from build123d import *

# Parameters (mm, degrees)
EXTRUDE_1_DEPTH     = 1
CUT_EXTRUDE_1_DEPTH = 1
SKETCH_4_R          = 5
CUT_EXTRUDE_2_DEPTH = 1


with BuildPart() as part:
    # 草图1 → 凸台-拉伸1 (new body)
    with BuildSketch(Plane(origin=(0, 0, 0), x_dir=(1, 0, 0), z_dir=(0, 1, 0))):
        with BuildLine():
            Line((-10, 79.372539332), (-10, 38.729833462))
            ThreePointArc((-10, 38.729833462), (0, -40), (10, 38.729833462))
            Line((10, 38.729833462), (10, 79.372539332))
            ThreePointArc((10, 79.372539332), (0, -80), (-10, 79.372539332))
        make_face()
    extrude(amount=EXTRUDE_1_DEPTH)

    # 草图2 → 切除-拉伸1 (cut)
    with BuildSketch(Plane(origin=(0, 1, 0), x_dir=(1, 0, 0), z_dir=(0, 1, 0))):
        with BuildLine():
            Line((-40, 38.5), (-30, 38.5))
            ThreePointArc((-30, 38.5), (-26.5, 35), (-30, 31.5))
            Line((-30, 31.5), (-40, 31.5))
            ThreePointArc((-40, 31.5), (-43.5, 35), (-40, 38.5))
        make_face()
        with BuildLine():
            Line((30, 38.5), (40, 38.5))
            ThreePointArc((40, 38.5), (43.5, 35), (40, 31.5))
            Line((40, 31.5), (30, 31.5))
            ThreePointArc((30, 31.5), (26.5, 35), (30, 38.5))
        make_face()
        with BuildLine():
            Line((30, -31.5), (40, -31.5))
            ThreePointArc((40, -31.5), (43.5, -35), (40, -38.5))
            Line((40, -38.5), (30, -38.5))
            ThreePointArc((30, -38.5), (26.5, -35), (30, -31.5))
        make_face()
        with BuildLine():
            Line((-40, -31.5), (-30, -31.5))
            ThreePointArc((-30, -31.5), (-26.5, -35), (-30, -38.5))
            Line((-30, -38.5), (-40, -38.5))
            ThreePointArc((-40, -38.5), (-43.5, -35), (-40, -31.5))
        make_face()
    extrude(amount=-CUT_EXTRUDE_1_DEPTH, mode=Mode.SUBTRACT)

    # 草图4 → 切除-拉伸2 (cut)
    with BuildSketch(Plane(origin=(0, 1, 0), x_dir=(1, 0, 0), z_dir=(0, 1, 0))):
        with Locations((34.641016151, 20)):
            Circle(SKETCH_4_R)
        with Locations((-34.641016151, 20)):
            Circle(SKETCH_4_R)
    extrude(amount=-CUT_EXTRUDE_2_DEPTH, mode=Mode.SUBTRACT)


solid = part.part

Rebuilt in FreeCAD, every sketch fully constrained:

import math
import FreeCAD as App
import Part
import Sketcher
from FreeCAD import Vector
Q = App.Units.Quantity

doc = App.newDocument("Part")
params = doc.addObject("Spreadsheet::Sheet", "Params")
for row, (alias, value) in enumerate([
    ("sketch1_radius", "80 mm"),
    ("sketch1_radius2", "40 mm"),
    ("pad1_length", "1 mm"),
    ("sketch2_radius", "3.5 mm"),
    ("sketch2_width", "10 mm"),
    ("pocket1_length", "1 mm"),
    ("sketch3_diameter", "10 mm"),
    ("pocket2_length", "1 mm"),
], start=1):
    params.set(f"A{row}", alias)
    params.set(f"B{row}", "=" + value)
    params.setAlias(f"B{row}", alias)

body = doc.addObject("PartDesign::Body", "Body")

# Sketch on XZ plane
sketch1 = body.newObject("Sketcher::SketchObject", "Sketch")
sketch1.AttachmentSupport = (doc.getObject("XZ_Plane"), [""])
sketch1.MapMode = "FlatFace"
sketch1.addGeometry(Part.LineSegment(Vector(-10, -39, 0), Vector(-10, -79, 0)), False)
sketch1.addGeometry(Part.ArcOfCircle(Part.Circle(Vector(0, 0, 0), Vector(0, 0, 1), 80), math.radians(-83), math.radians(263)), False)
sketch1.addGeometry(Part.LineSegment(Vector(10, -79, 0), Vector(10, -39, 0)), False)
sketch1.addGeometry(Part.ArcOfCircle(Part.Circle(Vector(0, 0, 0), Vector(0, 0, 1), 40), math.radians(-76), math.radians(256)), False)
sketch1.addConstraint(Sketcher.Constraint("Coincident", 0, 2, 1, 2))
sketch1.addConstraint(Sketcher.Constraint("Coincident", 1, 1, 2, 1))
sketch1.addConstraint(Sketcher.Constraint("Coincident", 2, 2, 3, 1))
sketch1.addConstraint(Sketcher.Constraint("Coincident", 3, 2, 0, 1))
sketch1.addConstraint(Sketcher.Constraint("Vertical", 0))
sketch1.addConstraint(Sketcher.Constraint("Vertical", 2))
sketch1.addConstraint(Sketcher.Constraint("Coincident", 1, 3, -1, 1))
sketch1.addConstraint(Sketcher.Constraint("Coincident", 3, 3, -1, 1))
sketch1.addConstraint(Sketcher.Constraint("Horizontal", 0, 2, 1, 1))
sketch1.addConstraint(Sketcher.Constraint("Radius", 1, Q("80 mm")))
sketch1.addConstraint(Sketcher.Constraint("Radius", 3, Q("40 mm")))
sketch1.addConstraint(Sketcher.Constraint("DistanceX", 0, 2, -1, 1, Q("10 mm")))
sketch1.setExpression("Constraints[9]", "Params.sketch1_radius")
sketch1.setExpression("Constraints[10]", "Params.sketch1_radius2")
pad1 = body.newObject("PartDesign::Pad", "Pad")
pad1.Profile = sketch1
pad1.setExpression("Length", "Params.pad1_length")
pad1.Reversed = True

# Sketch on XZ plane
sketch2 = body.newObject("Sketcher::SketchObject", "Sketch001")
sketch2.AttachmentSupport = (doc.getObject("XZ_Plane"), [""])
sketch2.MapMode = "FlatFace"
sketch2.AttachmentOffset = App.Placement(Vector(0, 0, -1), App.Rotation())
sketch2.addGeometry(Part.LineSegment(Vector(-30, -38.5, 0), Vector(-40, -38.5, 0)), False)
sketch2.addGeometry(Part.ArcOfCircle(Part.Circle(Vector(-40, -35, 0), Vector(0, 0, 1), 3.5), math.radians(90), math.radians(270)), False)
sketch2.addGeometry(Part.LineSegment(Vector(-40, -31.5, 0), Vector(-30, -31.5, 0)), False)
sketch2.addGeometry(Part.ArcOfCircle(Part.Circle(Vector(-30, -35, 0), Vector(0, 0, 1), 3.5), math.radians(-90), math.radians(90)), False)
sketch2.addGeometry(Part.LineSegment(Vector(40, -38.5, 0), Vector(30, -38.5, 0)), False)
sketch2.addGeometry(Part.ArcOfCircle(Part.Circle(Vector(30, -35, 0), Vector(0, 0, 1), 3.5), math.radians(90), math.radians(270)), False)
sketch2.addGeometry(Part.LineSegment(Vector(30, -31.5, 0), Vector(40, -31.5, 0)), False)
sketch2.addGeometry(Part.ArcOfCircle(Part.Circle(Vector(40, -35, 0), Vector(0, 0, 1), 3.5), math.radians(-90), math.radians(90)), False)
sketch2.addGeometry(Part.LineSegment(Vector(40, 31.5, 0), Vector(30, 31.5, 0)), False)
sketch2.addGeometry(Part.ArcOfCircle(Part.Circle(Vector(30, 35, 0), Vector(0, 0, 1), 3.5), math.radians(90), math.radians(270)), False)
sketch2.addGeometry(Part.LineSegment(Vector(30, 38.5, 0), Vector(40, 38.5, 0)), False)
sketch2.addGeometry(Part.ArcOfCircle(Part.Circle(Vector(40, 35, 0), Vector(0, 0, 1), 3.5), math.radians(-90), math.radians(90)), False)
sketch2.addGeometry(Part.LineSegment(Vector(-30, 31.5, 0), Vector(-40, 31.5, 0)), False)
sketch2.addGeometry(Part.ArcOfCircle(Part.Circle(Vector(-40, 35, 0), Vector(0, 0, 1), 3.5), math.radians(90), math.radians(270)), False)
sketch2.addGeometry(Part.LineSegment(Vector(-40, 38.5, 0), Vector(-30, 38.5, 0)), False)
sketch2.addGeometry(Part.ArcOfCircle(Part.Circle(Vector(-30, 35, 0), Vector(0, 0, 1), 3.5), math.radians(-90), math.radians(90)), False)
sketch2.addConstraint(Sketcher.Constraint("Tangent", 0, 2, 1, 2))
sketch2.addConstraint(Sketcher.Constraint("Tangent", 1, 1, 2, 1))
sketch2.addConstraint(Sketcher.Constraint("Tangent", 2, 2, 3, 2))
sketch2.addConstraint(Sketcher.Constraint("Tangent", 3, 1, 0, 1))
sketch2.addConstraint(Sketcher.Constraint("Tangent", 4, 2, 5, 2))
sketch2.addConstraint(Sketcher.Constraint("Tangent", 5, 1, 6, 1))
sketch2.addConstraint(Sketcher.Constraint("Tangent", 6, 2, 7, 2))
sketch2.addConstraint(Sketcher.Constraint("Tangent", 7, 1, 4, 1))
sketch2.addConstraint(Sketcher.Constraint("Tangent", 8, 2, 9, 2))
sketch2.addConstraint(Sketcher.Constraint("Tangent", 9, 1, 10, 1))
sketch2.addConstraint(Sketcher.Constraint("Tangent", 10, 2, 11, 2))
sketch2.addConstraint(Sketcher.Constraint("Tangent", 11, 1, 8, 1))
sketch2.addConstraint(Sketcher.Constraint("Tangent", 12, 2, 13, 2))
sketch2.addConstraint(Sketcher.Constraint("Tangent", 13, 1, 14, 1))
sketch2.addConstraint(Sketcher.Constraint("Tangent", 14, 2, 15, 2))
sketch2.addConstraint(Sketcher.Constraint("Tangent", 15, 1, 12, 1))
sketch2.addConstraint(Sketcher.Constraint("Horizontal", 0))
sketch2.addConstraint(Sketcher.Constraint("Horizontal", 2))
sketch2.addConstraint(Sketcher.Constraint("Horizontal", 4))
sketch2.addConstraint(Sketcher.Constraint("Horizontal", 6))
sketch2.addConstraint(Sketcher.Constraint("Horizontal", 8))
sketch2.addConstraint(Sketcher.Constraint("Horizontal", 10))
sketch2.addConstraint(Sketcher.Constraint("Horizontal", 12))
sketch2.addConstraint(Sketcher.Constraint("Horizontal", 14))
sketch2.addConstraint(Sketcher.Constraint("Equal", 3, 5))
sketch2.addConstraint(Sketcher.Constraint("Equal", 7, 9))
sketch2.addConstraint(Sketcher.Constraint("Equal", 11, 13))
sketch2.addConstraint(Sketcher.Constraint("Symmetric", 3, 3, 9, 3, -1, 1))
sketch2.addConstraint(Sketcher.Constraint("Symmetric", 7, 3, 13, 3, -1, 1))
sketch2.addConstraint(Sketcher.Constraint("Symmetric", 3, 3, 5, 3, -2))
sketch2.addConstraint(Sketcher.Constraint("Vertical", 7, 3, 11, 3))
sketch2.addConstraint(Sketcher.Constraint("Vertical", 1, 3, 13, 3))
sketch2.addConstraint(Sketcher.Constraint("Vertical", 3, 3, 15, 3))
sketch2.addConstraint(Sketcher.Constraint("Radius", 1, Q("3.5 mm")))
sketch2.addConstraint(Sketcher.Constraint("DistanceX", 0, 2, 0, 1, Q("10 mm")))
sketch2.addConstraint(Sketcher.Constraint("DistanceX", 1, 3, -1, 1, Q("40 mm")))
sketch2.addConstraint(Sketcher.Constraint("DistanceY", 1, 3, -1, 1, Q("35 mm")))
sketch2.setExpression("Constraints[33]", "Params.sketch2_radius")
sketch2.setExpression("Constraints[34]", "Params.sketch2_width")
pocket1 = body.newObject("PartDesign::Pocket", "Pocket")
pocket1.Profile = sketch2
pocket1.setExpression("Length", "Params.pocket1_length")
pocket1.Reversed = True

# Sketch on XZ plane
sketch3 = body.newObject("Sketcher::SketchObject", "Sketch002")
sketch3.AttachmentSupport = (doc.getObject("XZ_Plane"), [""])
sketch3.MapMode = "FlatFace"
sketch3.AttachmentOffset = App.Placement(Vector(0, 0, -1), App.Rotation())
sketch3.addGeometry(Part.Circle(Vector(35, -20, 0), Vector(0, 0, 1), 5), False)
sketch3.addGeometry(Part.Circle(Vector(-35, -20, 0), Vector(0, 0, 1), 5), False)
sketch3.addConstraint(Sketcher.Constraint("Equal", 0, 1))
sketch3.addConstraint(Sketcher.Constraint("Symmetric", 0, 3, 1, 3, -2))
sketch3.addConstraint(Sketcher.Constraint("Diameter", 0, Q("10 mm")))
sketch3.addConstraint(Sketcher.Constraint("DistanceY", 0, 3, -1, 1, Q("20 mm")))
sketch3.addConstraint(Sketcher.Constraint("DistanceX", -1, 1, 0, 3, Q("34.641016 mm")))
sketch3.setExpression("Constraints[2]", "Params.sketch3_diameter")
pocket2 = body.newObject("PartDesign::Pocket", "Pocket001")
pocket2.Profile = sketch3
pocket2.setExpression("Length", "Params.pocket2_length")
pocket2.Reversed = True

doc.recompute()
